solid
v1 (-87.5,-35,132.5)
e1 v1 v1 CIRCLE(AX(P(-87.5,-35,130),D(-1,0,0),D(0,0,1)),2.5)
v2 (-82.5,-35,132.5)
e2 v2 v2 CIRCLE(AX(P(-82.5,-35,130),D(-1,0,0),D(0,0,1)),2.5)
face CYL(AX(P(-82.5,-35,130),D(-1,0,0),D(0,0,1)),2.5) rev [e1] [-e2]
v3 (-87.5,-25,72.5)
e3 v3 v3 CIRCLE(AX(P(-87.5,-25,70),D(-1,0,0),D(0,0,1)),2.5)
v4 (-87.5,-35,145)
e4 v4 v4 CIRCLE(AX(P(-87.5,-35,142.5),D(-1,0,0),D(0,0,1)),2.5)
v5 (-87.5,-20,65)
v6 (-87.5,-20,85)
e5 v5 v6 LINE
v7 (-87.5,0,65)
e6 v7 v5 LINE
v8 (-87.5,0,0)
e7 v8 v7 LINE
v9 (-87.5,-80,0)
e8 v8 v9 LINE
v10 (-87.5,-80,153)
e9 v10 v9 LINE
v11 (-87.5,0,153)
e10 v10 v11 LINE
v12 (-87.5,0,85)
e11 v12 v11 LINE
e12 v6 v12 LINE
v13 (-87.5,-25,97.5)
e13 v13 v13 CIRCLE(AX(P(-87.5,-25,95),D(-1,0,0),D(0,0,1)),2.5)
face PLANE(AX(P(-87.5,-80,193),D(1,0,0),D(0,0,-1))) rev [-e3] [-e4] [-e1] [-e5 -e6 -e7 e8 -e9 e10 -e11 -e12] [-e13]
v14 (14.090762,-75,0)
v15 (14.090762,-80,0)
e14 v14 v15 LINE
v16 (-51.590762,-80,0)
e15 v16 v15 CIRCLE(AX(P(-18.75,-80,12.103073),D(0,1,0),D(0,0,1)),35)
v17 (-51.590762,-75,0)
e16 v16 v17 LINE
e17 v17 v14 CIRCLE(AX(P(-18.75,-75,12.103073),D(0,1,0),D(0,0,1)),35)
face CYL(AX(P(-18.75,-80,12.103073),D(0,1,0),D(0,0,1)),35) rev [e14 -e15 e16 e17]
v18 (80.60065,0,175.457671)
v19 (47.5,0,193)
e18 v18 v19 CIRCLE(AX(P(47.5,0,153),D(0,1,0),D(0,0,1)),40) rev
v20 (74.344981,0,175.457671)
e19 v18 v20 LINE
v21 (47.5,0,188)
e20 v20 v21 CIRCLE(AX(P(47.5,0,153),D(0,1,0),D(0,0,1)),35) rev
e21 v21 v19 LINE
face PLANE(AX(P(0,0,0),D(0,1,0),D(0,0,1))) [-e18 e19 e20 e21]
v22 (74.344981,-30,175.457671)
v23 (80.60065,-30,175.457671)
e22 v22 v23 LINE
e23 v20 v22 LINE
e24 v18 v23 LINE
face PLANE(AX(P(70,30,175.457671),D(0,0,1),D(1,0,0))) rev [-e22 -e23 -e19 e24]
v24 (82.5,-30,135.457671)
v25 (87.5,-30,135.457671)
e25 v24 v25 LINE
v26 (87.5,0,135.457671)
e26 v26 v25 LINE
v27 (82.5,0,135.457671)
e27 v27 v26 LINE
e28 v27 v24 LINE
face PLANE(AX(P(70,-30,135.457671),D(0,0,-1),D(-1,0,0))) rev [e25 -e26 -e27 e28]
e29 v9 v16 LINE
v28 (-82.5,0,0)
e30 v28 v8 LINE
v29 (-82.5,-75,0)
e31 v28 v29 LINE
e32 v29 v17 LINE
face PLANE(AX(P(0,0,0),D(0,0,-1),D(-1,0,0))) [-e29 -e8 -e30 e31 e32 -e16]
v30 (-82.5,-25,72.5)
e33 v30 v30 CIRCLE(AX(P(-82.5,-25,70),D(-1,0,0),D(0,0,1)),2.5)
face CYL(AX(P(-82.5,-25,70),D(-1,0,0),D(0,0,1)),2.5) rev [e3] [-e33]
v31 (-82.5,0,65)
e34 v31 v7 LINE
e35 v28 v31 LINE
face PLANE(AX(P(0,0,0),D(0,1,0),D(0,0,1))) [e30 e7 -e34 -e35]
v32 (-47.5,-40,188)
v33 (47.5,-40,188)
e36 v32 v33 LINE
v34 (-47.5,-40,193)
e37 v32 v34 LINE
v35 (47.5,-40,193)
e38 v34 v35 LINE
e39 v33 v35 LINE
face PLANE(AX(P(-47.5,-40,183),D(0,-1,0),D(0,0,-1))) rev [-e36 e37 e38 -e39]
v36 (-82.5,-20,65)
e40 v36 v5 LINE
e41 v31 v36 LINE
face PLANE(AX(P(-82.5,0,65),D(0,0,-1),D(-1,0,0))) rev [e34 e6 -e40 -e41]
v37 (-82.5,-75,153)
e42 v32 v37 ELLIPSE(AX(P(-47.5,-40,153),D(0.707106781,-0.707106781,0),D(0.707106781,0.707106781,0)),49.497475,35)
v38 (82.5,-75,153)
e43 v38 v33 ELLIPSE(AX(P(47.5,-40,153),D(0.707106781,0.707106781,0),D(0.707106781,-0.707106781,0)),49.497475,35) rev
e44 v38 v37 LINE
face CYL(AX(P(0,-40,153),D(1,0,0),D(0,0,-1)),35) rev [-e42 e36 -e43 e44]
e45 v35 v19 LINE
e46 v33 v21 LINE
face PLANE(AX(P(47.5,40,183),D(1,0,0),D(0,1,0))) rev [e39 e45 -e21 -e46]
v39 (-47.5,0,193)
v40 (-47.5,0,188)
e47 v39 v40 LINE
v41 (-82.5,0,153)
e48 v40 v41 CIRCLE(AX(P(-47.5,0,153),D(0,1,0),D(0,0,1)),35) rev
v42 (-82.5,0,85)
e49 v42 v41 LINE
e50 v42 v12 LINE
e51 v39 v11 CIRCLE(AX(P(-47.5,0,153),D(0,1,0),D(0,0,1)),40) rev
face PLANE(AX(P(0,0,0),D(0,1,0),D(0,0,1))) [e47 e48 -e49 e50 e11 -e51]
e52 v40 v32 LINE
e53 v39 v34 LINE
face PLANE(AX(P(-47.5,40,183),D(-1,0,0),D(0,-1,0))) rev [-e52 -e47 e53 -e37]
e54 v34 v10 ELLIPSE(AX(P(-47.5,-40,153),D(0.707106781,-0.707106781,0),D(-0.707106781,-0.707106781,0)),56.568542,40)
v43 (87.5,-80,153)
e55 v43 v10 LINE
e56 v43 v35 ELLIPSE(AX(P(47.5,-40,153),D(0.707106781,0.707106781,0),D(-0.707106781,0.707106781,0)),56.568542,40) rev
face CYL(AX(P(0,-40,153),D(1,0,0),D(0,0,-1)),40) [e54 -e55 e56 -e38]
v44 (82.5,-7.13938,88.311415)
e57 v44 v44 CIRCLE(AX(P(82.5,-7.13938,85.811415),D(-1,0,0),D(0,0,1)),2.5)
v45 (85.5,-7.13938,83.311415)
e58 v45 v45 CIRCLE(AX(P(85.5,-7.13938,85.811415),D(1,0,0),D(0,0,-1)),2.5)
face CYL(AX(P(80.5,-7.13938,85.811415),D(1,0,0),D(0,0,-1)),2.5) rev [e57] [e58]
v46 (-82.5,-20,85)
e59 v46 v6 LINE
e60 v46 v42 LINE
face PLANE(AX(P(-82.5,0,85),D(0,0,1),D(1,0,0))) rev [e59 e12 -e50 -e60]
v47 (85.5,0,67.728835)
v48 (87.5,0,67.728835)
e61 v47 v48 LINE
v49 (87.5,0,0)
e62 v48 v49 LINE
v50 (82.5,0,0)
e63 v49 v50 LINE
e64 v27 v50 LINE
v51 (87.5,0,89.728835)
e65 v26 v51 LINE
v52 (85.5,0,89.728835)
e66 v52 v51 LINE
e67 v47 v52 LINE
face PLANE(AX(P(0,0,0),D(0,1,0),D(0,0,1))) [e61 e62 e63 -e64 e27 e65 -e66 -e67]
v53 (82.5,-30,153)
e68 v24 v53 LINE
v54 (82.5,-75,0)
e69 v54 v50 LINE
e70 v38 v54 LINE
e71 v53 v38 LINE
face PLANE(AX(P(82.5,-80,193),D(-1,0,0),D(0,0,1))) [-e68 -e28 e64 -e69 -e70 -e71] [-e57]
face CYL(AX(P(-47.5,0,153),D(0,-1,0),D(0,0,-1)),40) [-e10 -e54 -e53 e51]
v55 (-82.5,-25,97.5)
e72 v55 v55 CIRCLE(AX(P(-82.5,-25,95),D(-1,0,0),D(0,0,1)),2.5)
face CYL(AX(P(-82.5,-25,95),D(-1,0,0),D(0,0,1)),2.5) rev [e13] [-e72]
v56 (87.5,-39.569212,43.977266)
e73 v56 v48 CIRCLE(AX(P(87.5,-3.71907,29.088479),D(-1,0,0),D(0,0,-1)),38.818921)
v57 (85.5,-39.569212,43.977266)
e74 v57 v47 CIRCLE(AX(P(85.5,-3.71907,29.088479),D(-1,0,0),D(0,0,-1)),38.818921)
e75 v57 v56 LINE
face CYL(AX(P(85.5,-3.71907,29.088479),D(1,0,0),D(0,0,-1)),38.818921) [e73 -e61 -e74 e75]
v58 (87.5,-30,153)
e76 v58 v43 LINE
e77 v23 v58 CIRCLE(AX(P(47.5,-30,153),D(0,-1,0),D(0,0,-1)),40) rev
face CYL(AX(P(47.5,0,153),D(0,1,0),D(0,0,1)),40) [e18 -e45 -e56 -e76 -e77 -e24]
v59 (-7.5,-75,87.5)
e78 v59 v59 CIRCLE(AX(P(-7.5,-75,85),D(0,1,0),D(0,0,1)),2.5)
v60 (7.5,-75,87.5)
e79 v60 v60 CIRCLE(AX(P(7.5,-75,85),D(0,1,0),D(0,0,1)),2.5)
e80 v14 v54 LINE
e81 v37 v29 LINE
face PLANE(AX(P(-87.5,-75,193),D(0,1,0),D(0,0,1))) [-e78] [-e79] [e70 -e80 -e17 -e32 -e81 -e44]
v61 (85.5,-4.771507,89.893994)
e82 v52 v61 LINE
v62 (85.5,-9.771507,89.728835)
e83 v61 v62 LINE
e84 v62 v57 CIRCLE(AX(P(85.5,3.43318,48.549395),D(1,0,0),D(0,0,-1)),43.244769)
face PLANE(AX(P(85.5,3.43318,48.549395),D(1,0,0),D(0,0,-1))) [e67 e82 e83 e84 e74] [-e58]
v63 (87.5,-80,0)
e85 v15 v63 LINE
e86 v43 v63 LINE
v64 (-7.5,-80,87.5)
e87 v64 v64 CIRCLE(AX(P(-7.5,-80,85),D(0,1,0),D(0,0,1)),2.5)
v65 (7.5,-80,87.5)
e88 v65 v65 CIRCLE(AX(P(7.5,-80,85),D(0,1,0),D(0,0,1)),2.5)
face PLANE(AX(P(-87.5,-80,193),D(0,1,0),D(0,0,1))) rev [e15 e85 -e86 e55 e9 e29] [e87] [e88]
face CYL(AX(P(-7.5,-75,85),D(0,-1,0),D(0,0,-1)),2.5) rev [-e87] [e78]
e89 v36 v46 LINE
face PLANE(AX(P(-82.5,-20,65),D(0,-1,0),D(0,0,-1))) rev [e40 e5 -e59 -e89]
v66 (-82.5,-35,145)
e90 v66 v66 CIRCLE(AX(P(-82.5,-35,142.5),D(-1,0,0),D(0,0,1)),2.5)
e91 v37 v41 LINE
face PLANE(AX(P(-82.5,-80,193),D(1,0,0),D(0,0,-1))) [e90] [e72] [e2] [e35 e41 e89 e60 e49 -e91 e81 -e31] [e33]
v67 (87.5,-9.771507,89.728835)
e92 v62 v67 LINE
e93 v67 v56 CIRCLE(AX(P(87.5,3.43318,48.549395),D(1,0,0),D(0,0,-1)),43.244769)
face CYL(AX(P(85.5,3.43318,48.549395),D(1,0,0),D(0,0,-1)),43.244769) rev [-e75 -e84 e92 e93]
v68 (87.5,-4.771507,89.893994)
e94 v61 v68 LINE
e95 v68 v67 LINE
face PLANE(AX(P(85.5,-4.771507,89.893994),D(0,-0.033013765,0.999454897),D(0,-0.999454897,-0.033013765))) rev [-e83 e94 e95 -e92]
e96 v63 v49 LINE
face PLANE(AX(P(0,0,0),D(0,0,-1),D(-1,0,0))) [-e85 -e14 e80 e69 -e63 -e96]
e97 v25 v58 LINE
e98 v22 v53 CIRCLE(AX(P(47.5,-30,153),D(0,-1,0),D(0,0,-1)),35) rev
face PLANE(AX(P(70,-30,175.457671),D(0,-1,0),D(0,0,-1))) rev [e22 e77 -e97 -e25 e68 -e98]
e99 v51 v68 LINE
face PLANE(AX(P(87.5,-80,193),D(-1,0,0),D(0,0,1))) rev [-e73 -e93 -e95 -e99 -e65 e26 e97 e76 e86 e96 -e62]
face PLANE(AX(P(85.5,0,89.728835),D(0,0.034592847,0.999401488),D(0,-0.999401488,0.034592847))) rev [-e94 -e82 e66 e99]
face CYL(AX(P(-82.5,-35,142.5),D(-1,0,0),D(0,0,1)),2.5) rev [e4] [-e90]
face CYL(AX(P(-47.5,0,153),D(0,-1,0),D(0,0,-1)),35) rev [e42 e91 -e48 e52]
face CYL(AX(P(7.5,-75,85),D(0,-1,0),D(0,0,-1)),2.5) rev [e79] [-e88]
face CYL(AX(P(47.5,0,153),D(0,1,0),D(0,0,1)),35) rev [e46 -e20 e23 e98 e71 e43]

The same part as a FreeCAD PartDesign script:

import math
import FreeCAD as App
import Part
import Sketcher
from FreeCAD import Vector
Q = App.Units.Quantity


def edges_at(feature, points):
    """Names of the edges that pass closest to the given points."""
    edges = feature.Shape.Edges
    near = lambda p: min(range(len(edges)), key=lambda i: edges[i].distToShape(Part.Vertex(*p))[0])
    return sorted({f"Edge{near(p) + 1}" for p in points})


def faces_at(feature, points):
    """Names of the faces that lie closest to the given points."""
    faces = feature.Shape.Faces
    near = lambda p: min(range(len(faces)), key=lambda i: faces[i].distToShape(Part.Vertex(*p))[0])
    return sorted({f"Face{near(p) + 1}" for p in points})

doc = App.newDocument("Part")
params = doc.addObject("Spreadsheet::Sheet", "Params")
for row, (alias, value) in enumerate([
    ("sketch1_width", "175 mm"),
    ("sketch1_height", "160 mm"),
    ("pad1_length", "193 mm"),
    ("fillet_radius", "40 mm"),
    ("thickness_wall", "5 mm"),
    ("sketch2_width", "95 mm"),
    ("sketch2_height", "80 mm"),
    ("pocket1_length", "10 mm"),
    ("sketch3_diameter", "70 mm"),
    ("pocket2_length", "160 mm"),
    ("sketch4_width", "60 mm"),
    ("sketch4_height", "40 mm"),
    ("pocket3_length", "20 mm"),
    ("sketch5_width", "275 mm"),
    ("sketch5_height", "200 mm"),
    ("pocket4_length", "80 mm"),
    ("sketch6_diameter", "5 mm"),
    ("pocket5_length", "5 mm"),
    ("sketch7_diameter", "5 mm"),
    ("sketch7_width", "20 mm"),
    ("pocket6_length", "5 mm"),
    ("sketch8_height", "22 mm"),
    ("pocket7_length", "2 mm"),
    ("sketch9_diameter", "5 mm"),
    ("pocket8_length", "5 mm"),
], start=1):
    params.set(f"A{row}", alias)
    params.set(f"B{row}", "=" + value)
    params.setAlias(f"B{row}", alias)

body = doc.addObject("PartDesign::Body", "Body")

# Sketch on XY plane
sketch1 = body.newObject("Sketcher::SketchObject", "Sketch")
sketch1.AttachmentSupport = (doc.getObject("XY_Plane"), [""])
sketch1.MapMode = "FlatFace"
sketch1.addGeometry([
    Part.LineSegment(Vector(-88, 80, 0), Vector(-88, -80, 0)),
    Part.LineSegment(Vector(-88, -80, 0), Vector(88, -80, 0)),
    Part.LineSegment(Vector(88, -80, 0), Vector(88, 80, 0)),
    Part.LineSegment(Vector(88, 80, 0), Vector(-88, 80, 0)),
], False)
sketch1.addConstraint([
    Sketcher.Constraint("Coincident", 0, 2, 1, 1),
    Sketcher.Constraint("Coincident", 1, 2, 2, 1),
    Sketcher.Constraint("Coincident", 2, 2, 3, 1),
    Sketcher.Constraint("Coincident", 3, 2, 0, 1),
    Sketcher.Constraint("Vertical", 0),
    Sketcher.Constraint("Horizontal", 1),
    Sketcher.Constraint("Vertical", 2),
    Sketcher.Constraint("Horizontal", 3),
    Sketcher.Constraint("Symmetric", 0, 2, 2, 2, -1, 1),
    Sketcher.Constraint("DistanceX", 1, 1, 1, 2, Q("175 mm")),
    Sketcher.Constraint("DistanceY", 0, 2, 0, 1, Q("160 mm")),
])
sketch1.setExpression("Constraints[9]", "Params.sketch1_width")
sketch1.setExpression("Constraints[10]", "Params.sketch1_height")
pad1 = body.newObject("PartDesign::Pad", "Pad")
pad1.Profile = sketch1
pad1.setExpression("Length", "Params.pad1_length")
doc.recompute()

fillet = body.newObject("PartDesign::Fillet", "Fillet")
fillet.Base = (pad1, edges_at(pad1, [
    (-87.5, 0, 193),
    (0, -80, 193),
    (87.5, 0, 193),
    (0, 80, 193),
]))
fillet.setExpression("Radius", "Params.fillet_radius")
doc.recompute()

thickness = body.newObject("PartDesign::Thickness", "Thickness")
thickness.Base = (fillet, faces_at(fillet, [(0, 0, 0)]))
thickness.setExpression("Value", "Params.thickness_wall")
thickness.Reversed = True
thickness.Join = "Arc"

# Sketch on XY plane
sketch2 = body.newObject("Sketcher::SketchObject", "Sketch001")
sketch2.AttachmentSupport = (doc.getObject("XY_Plane"), [""])
sketch2.MapMode = "FlatFace"
sketch2.AttachmentOffset = App.Placement(Vector(0, 0, 193), App.Rotation())
sketch2.addGeometry([
    Part.LineSegment(Vector(-48, 40, 0), Vector(-48, -40, 0)),
    Part.LineSegment(Vector(-48, -40, 0), Vector(48, -40, 0)),
    Part.LineSegment(Vector(48, -40, 0), Vector(48, 40, 0)),
    Part.LineSegment(Vector(48, 40, 0), Vector(-48, 40, 0)),
], False)
sketch2.addConstraint([
    Sketcher.Constraint("Coincident", 0, 2, 1, 1),
    Sketcher.Constraint("Coincident", 1, 2, 2, 1),
    Sketcher.Constraint("Coincident", 2, 2, 3, 1),
    Sketcher.Constraint("Coincident", 3, 2, 0, 1),
    Sketcher.Constraint("Vertical", 0),
    Sketcher.Constraint("Horizontal", 1),
    Sketcher.Constraint("Vertical", 2),
    Sketcher.Constraint("Horizontal", 3),
    Sketcher.Constraint("Symmetric", 0, 2, 2, 2, -1, 1),
    Sketcher.Constraint("DistanceX", 1, 1, 1, 2, Q("95 mm")),
    Sketcher.Constraint("DistanceY", 0, 2, 0, 1, Q("80 mm")),
])
sketch2.setExpression("Constraints[9]", "Params.sketch2_width")
sketch2.setExpression("Constraints[10]", "Params.sketch2_height")
pocket1 = body.newObject("PartDesign::Pocket", "Pocket")
pocket1.Profile = sketch2
pocket1.setExpression("Length", "Params.pocket1_length")

# Sketch on XZ plane
sketch3 = body.newObject("Sketcher::SketchObject", "Sketch002")
sketch3.AttachmentSupport = (doc.getObject("XZ_Plane"), [""])
sketch3.MapMode = "FlatFace"
sketch3.AttachmentOffset = App.Placement(Vector(0, 0, -80), App.Rotation())
sketch3.addGeometry(Part.Circle(Vector(-19, 12, 0), Vector(0, 0, 1), 35), False)
sketch3.addConstraint([
    Sketcher.Constraint("Diameter", 0, Q("70 mm")),
    Sketcher.Constraint("DistanceX", 0, 3, -1, 1, Q("18.75 mm")),
    Sketcher.Constraint("DistanceY", -1, 1, 0, 3, Q("12.103073 mm")),
])
sketch3.setExpression("Constraints[0]", "Params.sketch3_diameter")
pocket2 = body.newObject("PartDesign::Pocket", "Pocket001")
pocket2.Profile = sketch3
pocket2.setExpression("Length", "Params.pocket2_length")
pocket2.Reversed = True

# Sketch on YZ plane
sketch4 = body.newObject("Sketcher::SketchObject", "Sketch003")
sketch4.AttachmentSupport = (doc.getObject("YZ_Plane"), [""])
sketch4.MapMode = "FlatFace"
sketch4.AttachmentOffset = App.Placement(Vector(0, 0, 90), App.Rotation())
sketch4.addGeometry([
    Part.LineSegment(Vector(30, 175, 0), Vector(-30, 175, 0)),
    Part.LineSegment(Vector(-30, 175, 0), Vector(-30, 135, 0)),
    Part.LineSegment(Vector(-30, 135, 0), Vector(30, 135, 0)),
    Part.LineSegment(Vector(30, 135, 0), Vector(30, 175, 0)),
], False)
sketch4.addConstraint([
    Sketcher.Constraint("Coincident", 0, 2, 1, 1),
    Sketcher.Constraint("Coincident", 1, 2, 2, 1),
    Sketcher.Constraint("Coincident", 2, 2, 3, 1),
    Sketcher.Constraint("Coincident", 3, 2, 0, 1),
    Sketcher.Constraint("Horizontal", 0),
    Sketcher.Constraint("Vertical", 1),
    Sketcher.Constraint("Horizontal", 2),
    Sketcher.Constraint("Vertical", 3),
    Sketcher.Constraint("DistanceX", 0, 2, 0, 1, Q("60 mm")),
    Sketcher.Constraint("DistanceY", 1, 2, 1, 1, Q("40 mm")),
    Sketcher.Constraint("DistanceX", 0, 2, -1, 1, Q("30 mm")),
    Sketcher.Constraint("DistanceY", -1, 1, 0, 2, Q("175.457671 mm")),
])
sketch4.setExpression("Constraints[8]", "Params.sketch4_width")
sketch4.setExpression("Constraints[9]", "Params.sketch4_height")
pocket3 = body.newObject("PartDesign::Pocket", "Pocket002")
pocket3.Profile = sketch4
pocket3.setExpression("Length", "Params.pocket3_length")

# Sketch on XZ plane
sketch5 = body.newObject("Sketcher::SketchObject", "Sketch004")
sketch5.AttachmentSupport = (doc.getObject("XZ_Plane"), [""])
sketch5.MapMode = "FlatFace"
sketch5.addGeometry([
    Part.LineSegment(Vector(-165, 200, 0), Vector(110, 200, 0)),
    Part.LineSegment(Vector(110, 200, 0), Vector(110, 0, 0)),
    Part.LineSegment(Vector(110, 0, 0), Vector(-165, 0, 0)),
    Part.LineSegment(Vector(-165, 0, 0), Vector(-165, 200, 0)),
], False)
sketch5.addConstraint([
    Sketcher.Constraint("Coincident", 0, 2, 1, 1),
    Sketcher.Constraint("Coincident", 1, 2, 2, 1),
    Sketcher.Constraint("Coincident", 2, 2, 3, 1),
    Sketcher.Constraint("Coincident", 3, 2, 0, 1),
    Sketcher.Constraint("Horizontal", 0),
    Sketcher.Constraint("Vertical", 1),
    Sketcher.Constraint("Horizontal", 2),
    Sketcher.Constraint("Vertical", 3),
    Sketcher.Constraint("PointOnObject", 1, 2, -1),
    Sketcher.Constraint("DistanceX", 0, 1, 0, 2, Q("275 mm")),
    Sketcher.Constraint("DistanceY", 1, 2, 1, 1, Q("200 mm")),
    Sketcher.Constraint("DistanceX", -1, 1, 0, 2, Q("110 mm")),
])
sketch5.setExpression("Constraints[9]", "Params.sketch5_width")
sketch5.setExpression("Constraints[10]", "Params.sketch5_height")
pocket4 = body.newObject("PartDesign::Pocket", "Pocket003")
pocket4.Profile = sketch5
pocket4.setExpression("Length", "Params.pocket4_length")

# Sketch on XZ plane
sketch6 = body.newObject("Sketcher::SketchObject", "Sketch005")
sketch6.AttachmentSupport = (doc.getObject("XZ_Plane"), [""])
sketch6.MapMode = "FlatFace"
sketch6.AttachmentOffset = App.Placement(Vector(0, 0, 80), App.Rotation())
sketch6.addGeometry([
    Part.Circle(Vector(-7.5, 85, 0), Vector(0, 0, 1), 2.5),
    Part.Circle(Vector(7.5, 85, 0), Vector(0, 0, 1), 2.5),
], False)
sketch6.addConstraint([
    Sketcher.Constraint("Equal", 0, 1),
    Sketcher.Constraint("Symmetric", 0, 3, 1, 3, -2),
    Sketcher.Constraint("Diameter", 0, Q("5 mm")),
    Sketcher.Constraint("DistanceY", -1, 1, 0, 3, Q("85 mm")),
    Sketcher.Constraint("DistanceX", 0, 3, 1, 3, Q("15 mm")),
])
sketch6.setExpression("Constraints[2]", "Params.sketch6_diameter")
pocket5 = body.newObject("PartDesign::Pocket", "Pocket004")
pocket5.Profile = sketch6
pocket5.setExpression("Length", "Params.pocket5_length")

# Sketch on YZ plane
sketch7 = body.newObject("Sketcher::SketchObject", "Sketch006")
sketch7.AttachmentSupport = (doc.getObject("YZ_Plane"), [""])
sketch7.MapMode = "FlatFace"
sketch7.AttachmentOffset = App.Placement(Vector(0, 0, -87.5), App.Rotation())
sketch7.addGeometry([
    Part.Circle(Vector(-35, 130, 0), Vector(0, 0, 1), 2.5),  # 0
    Part.Circle(Vector(-35, 142.5, 0), Vector(0, 0, 1), 2.5),  # 1
    Part.Circle(Vector(-25, 70, 0), Vector(0, 0, 1), 2.5),  # 2
    Part.Circle(Vector(-25, 95, 0), Vector(0, 0, 1), 2.5),  # 3
    Part.LineSegment(Vector(0, 65, 0), Vector(-20, 65, 0)),  # 4
    Part.LineSegment(Vector(-20, 65, 0), Vector(-20, 85, 0)),  # 5
    Part.LineSegment(Vector(-20, 85, 0), Vector(0, 85, 0)),  # 6
    Part.LineSegment(Vector(0, 85, 0), Vector(0, 65, 0)),  # 7
], False)
sketch7.addConstraint([
    Sketcher.Constraint("Coincident", 4, 2, 5, 1),
    Sketcher.Constraint("Coincident", 5, 2, 6, 1),
    Sketcher.Constraint("Coincident", 6, 2, 7, 1),
    Sketcher.Constraint("Coincident", 7, 2, 4, 1),
    Sketcher.Constraint("Horizontal", 4),
    Sketcher.Constraint("Vertical", 5),
    Sketcher.Constraint("Horizontal", 6),
    Sketcher.Constraint("Vertical", 7),
    Sketcher.Constraint("Equal", 0, 1),
    Sketcher.Constraint("Equal", 1, 2),
    Sketcher.Constraint("Equal", 2, 3),
    Sketcher.Constraint("PointOnObject", 6, 2, -2),
    Sketcher.Constraint("Vertical", 0, 3, 1, 3),
    Sketcher.Constraint("Vertical", 2, 3, 3, 3),
    Sketcher.Constraint("Equal", 6, 5),
    Sketcher.Constraint("Diameter", 0, Q("5 mm")),
    Sketcher.Constraint("DistanceX", 4, 2, 4, 1, Q("20 mm")),
    Sketcher.Constraint("DistanceX", 0, 3, -1, 1, Q("35 mm")),
    Sketcher.Constraint("DistanceY", -1, 1, 0, 3, Q("130 mm")),
    Sketcher.Constraint("DistanceX", 2, 3, -1, 1, Q("25 mm")),
    Sketcher.Constraint("DistanceY", -1, 1, 2, 3, Q("70 mm")),
    Sketcher.Constraint("DistanceY", -1, 1, 3, 3, Q("95 mm")),
    Sketcher.Constraint("DistanceY", -1, 1, 4, 2, Q("65 mm")),
    Sketcher.Constraint("DistanceY", -1, 1, 1, 3, Q("142.5 mm")),
])
sketch7.setExpression("Constraints[15]", "Params.sketch7_diameter")
sketch7.setExpression("Constraints[16]", "Params.sketch7_width")
pocket6 = body.newObject("PartDesign::Pocket", "Pocket005")
pocket6.Profile = sketch7
pocket6.setExpression("Length", "Params.pocket6_length")
pocket6.Reversed = True

# Sketch on YZ plane
sketch8 = body.newObject("Sketcher::SketchObject", "Sketch007")
sketch8.AttachmentSupport = (doc.getObject("YZ_Plane"), [""])
sketch8.MapMode = "FlatFace"
sketch8.AttachmentOffset = App.Placement(Vector(0, 0, 87.5), App.Rotation())
sketch8.addGeometry([
    Part.LineSegment(Vector(0, 67.7, 0), Vector(0, 89.7, 0)),  # 0
    Part.LineSegment(Vector(0, 89.7, 0), Vector(-4.8, 89.9, 0)),  # 1
    Part.LineSegment(Vector(-4.8, 89.9, 0), Vector(-9.8, 89.7, 0)),  # 2
    Part.ArcOfCircle(Part.Circle(Vector(3.4, 48.5, 0), Vector(0, 0, 1), 43.2), math.radians(108), math.radians(186)),  # 3
    Part.ArcOfCircle(Part.Circle(Vector(-3.7, 29.1, 0), Vector(0, 0, 1), 38.8), math.radians(85), math.radians(157)),  # 4
], False)
sketch8.addConstraint([
    Sketcher.Constraint("Coincident", 0, 2, 1, 1),
    Sketcher.Constraint("Coincident", 1, 2, 2, 1),
    Sketcher.Constraint("Coincident", 2, 2, 3, 1),
    Sketcher.Constraint("Coincident", 3, 2, 4, 2),
    Sketcher.Constraint("Coincident", 4, 1, 0, 1),
    Sketcher.Constraint("Vertical", 0),
    Sketcher.Constraint("PointOnObject", 0, 2, -2),
    Sketcher.Constraint("Horizontal", 0, 2, 2, 2),
    Sketcher.Constraint("DistanceY", 0, 1, 0, 2, Q("22 mm")),
    Sketcher.Constraint("DistanceX", 2, 2, 1, 2, Q("5 mm")),
    Sketcher.Constraint("Radius", 3, Q("43.244769 mm")),
    Sketcher.Constraint("Radius", 4, Q("38.818921 mm")),
    Sketcher.Constraint("DistanceY", 3, 3, 1, 2, Q("41.344599 mm")),
    Sketcher.Constraint("DistanceX", -1, 1, 3, 3, Q("3.43318 mm")),
    Sketcher.Constraint("DistanceX", 4, 3, -1, 1, Q("3.71907 mm")),
    Sketcher.Constraint("DistanceY", -1, 1, 4, 3, Q("29.088479 mm")),
    Sketcher.Constraint("DistanceX", 3, 2, -1, 1, Q("39.569212 mm")),
])
sketch8.setExpression("Constraints[8]", "Params.sketch8_height")
pocket7 = body.newObject("PartDesign::Pocket", "Pocket006")
pocket7.Profile = sketch8
pocket7.setExpression("Length", "Params.pocket7_length")

# Sketch on YZ plane
sketch9 = body.newObject("Sketcher::SketchObject", "Sketch008")
sketch9.AttachmentSupport = (doc.getObject("YZ_Plane"), [""])
sketch9.MapMode = "FlatFace"
sketch9.AttachmentOffset = App.Placement(Vector(0, 0, 85.5), App.Rotation())
sketch9.addGeometry(Part.Circle(Vector(-7.1, 85.8, 0), Vector(0, 0, 1), 2.5), False)
sketch9.addConstraint([
    Sketcher.Constraint("Diameter", 0, Q("5 mm")),
    Sketcher.Constraint("DistanceX", 0, 3, -1, 1, Q("7.13938 mm")),
    Sketcher.Constraint("DistanceY", -1, 1, 0, 3, Q("85.811415 mm")),
])
sketch9.setExpression("Constraints[0]", "Params.sketch9_diameter")
pocket8 = body.newObject("PartDesign::Pocket", "Pocket007")
pocket8.Profile = sketch9
pocket8.setExpression("Length", "Params.pocket8_length")

doc.recompute()
